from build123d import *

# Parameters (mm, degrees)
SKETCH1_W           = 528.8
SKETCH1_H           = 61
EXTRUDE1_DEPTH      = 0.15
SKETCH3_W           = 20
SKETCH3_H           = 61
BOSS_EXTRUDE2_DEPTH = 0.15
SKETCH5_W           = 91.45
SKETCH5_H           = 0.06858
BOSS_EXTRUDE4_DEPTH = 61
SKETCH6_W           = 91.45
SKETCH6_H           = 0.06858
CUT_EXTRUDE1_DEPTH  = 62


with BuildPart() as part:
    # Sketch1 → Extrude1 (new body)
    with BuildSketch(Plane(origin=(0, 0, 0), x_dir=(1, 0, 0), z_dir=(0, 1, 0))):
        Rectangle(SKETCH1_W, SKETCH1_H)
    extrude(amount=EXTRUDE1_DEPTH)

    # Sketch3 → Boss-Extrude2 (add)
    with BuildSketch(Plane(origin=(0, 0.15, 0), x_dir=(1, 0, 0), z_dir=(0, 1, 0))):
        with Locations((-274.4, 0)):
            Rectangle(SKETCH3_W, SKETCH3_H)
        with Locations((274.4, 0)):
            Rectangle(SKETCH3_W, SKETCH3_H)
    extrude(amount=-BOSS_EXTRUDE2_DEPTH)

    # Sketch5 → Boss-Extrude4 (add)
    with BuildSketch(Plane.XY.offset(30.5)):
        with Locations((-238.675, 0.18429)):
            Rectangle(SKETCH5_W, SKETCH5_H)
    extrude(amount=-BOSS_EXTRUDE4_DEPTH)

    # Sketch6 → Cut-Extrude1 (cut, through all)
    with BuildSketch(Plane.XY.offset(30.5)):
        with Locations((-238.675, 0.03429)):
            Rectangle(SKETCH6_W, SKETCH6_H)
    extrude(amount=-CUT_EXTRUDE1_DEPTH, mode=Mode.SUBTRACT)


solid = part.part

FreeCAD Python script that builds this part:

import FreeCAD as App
import Part
import Sketcher
from FreeCAD import Vector

doc = App.newDocument("Part")
body = doc.addObject("PartDesign::Body", "Body")

sketch1 = body.newObject("Sketcher::SketchObject", "Sketch")
sketch1.AttachmentSupport = (doc.getObject("XZ_Plane"), [""])
sketch1.MapMode = "FlatFace"
sketch1.addGeometry([
    Part.LineSegment(Vector(-264.4, -30.5, 0), Vector(-264.4, 30.5, 0)),
    Part.LineSegment(Vector(-264.4, 30.5, 0), Vector(264.4, 30.5, 0)),
    Part.LineSegment(Vector(264.4, 30.5, 0), Vector(264.4, -30.5, 0)),
    Part.LineSegment(Vector(264.4, -30.5, 0), Vector(-264.4, -30.5, 0)),
], False)
sketch1.addConstraint([
    Sketcher.Constraint("Coincident", 0, 2, 1, 1),
    Sketcher.Constraint("Coincident", 1, 2, 2, 1),
    Sketcher.Constraint("Coincident", 2, 2, 3, 1),
    Sketcher.Constraint("Coincident", 3, 2, 0, 1),
    Sketcher.Constraint("Vertical", 0),
    Sketcher.Constraint("Horizontal", 1),
    Sketcher.Constraint("Vertical", 2),
    Sketcher.Constraint("Horizontal", 3),
    Sketcher.Constraint("Symmetric", 0, 2, 2, 2, -1, 1),
    Sketcher.Constraint("DistanceY", 0, 1, 0, 2, 61.0),
    Sketcher.Constraint("DistanceX", 1, 1, 1, 2, 528.8),
])
pad1 = body.newObject("PartDesign::Pad", "Pad")
pad1.Profile = sketch1
pad1.Length = 0.15
pad1.Reversed = True

sketch2 = body.newObject("Sketcher::SketchObject", "Sketch001")
sketch2.AttachmentSupport = (doc.getObject("XZ_Plane"), [""])
sketch2.MapMode = "FlatFace"
sketch2.AttachmentOffset = App.Placement(Vector(0, 0, -0.15), App.Rotation())
sketch2.addGeometry([
    Part.LineSegment(Vector(-284.4, -30.5, 0), Vector(-284.4, 30.5, 0)),
    Part.LineSegment(Vector(-284.4, 30.5, 0), Vector(-264.4, 30.5, 0)),
    Part.LineSegment(Vector(-264.4, 30.5, 0), Vector(-264.4, -30.5, 0)),
    Part.LineSegment(Vector(-264.4, -30.5, 0), Vector(-284.4, -30.5, 0)),
    Part.LineSegment(Vector(264.4, -30.5, 0), Vector(264.4, 30.5, 0)),
    Part.LineSegment(Vector(264.4, 30.5, 0), Vector(284.4, 30.5, 0)),
    Part.LineSegment(Vector(284.4, 30.5, 0), Vector(284.4, -30.5, 0)),
    Part.LineSegment(Vector(284.4, -30.5, 0), Vector(264.4, -30.5, 0)),
], False)
sketch2.addConstraint([
    Sketcher.Constraint("Coincident", 0, 2, 1, 1),
    Sketcher.Constraint("Coincident", 1, 2, 2, 1),
    Sketcher.Constraint("Coincident", 2, 2, 3, 1),
    Sketcher.Constraint("Coincident", 3, 2, 0, 1),
    Sketcher.Constraint("Coincident", 4, 2, 5, 1),
    Sketcher.Constraint("Coincident", 5, 2, 6, 1),
    Sketcher.Constraint("Coincident", 6, 2, 7, 1),
    Sketcher.Constraint("Coincident", 7, 2, 4, 1),
    Sketcher.Constraint("Vertical", 0),
    Sketcher.Constraint("Horizontal", 1),
    Sketcher.Constraint("Vertical", 2),
    Sketcher.Constraint("Horizontal", 3),
    Sketcher.Constraint("Vertical", 4),
    Sketcher.Constraint("Horizontal", 5),
    Sketcher.Constraint("Vertical", 6),
    Sketcher.Constraint("Horizontal", 7),
    Sketcher.Constraint("Symmetric", 2, 2, 4, 2, -1, 1),
    Sketcher.Constraint("Symmetric", 0, 2, 6, 2, -1, 1),
    Sketcher.Constraint("Horizontal", 1, 2, 4, 2),
    Sketcher.Constraint("DistanceX", 1, 1, 1, 2, 20.0),
    Sketcher.Constraint("DistanceY", 0, 1, 0, 2, 61.0),
    Sketcher.Constraint("DistanceX", 0, 2, -1, 1, 284.4),
])
pad2 = body.newObject("PartDesign::Pad", "Pad001")
pad2.Profile = sketch2
pad2.Length = 0.15

sketch3 = body.newObject("Sketcher::SketchObject", "Sketch002")
sketch3.AttachmentSupport = (doc.getObject("XY_Plane"), [""])
sketch3.MapMode = "FlatFace"
sketch3.AttachmentOffset = App.Placement(Vector(0, 0, 30.5), App.Rotation())
sketch3.addGeometry([
    Part.LineSegment(Vector(-284.4, 0.21858, 0), Vector(-284.4, 0.15, 0)),
    Part.LineSegment(Vector(-284.4, 0.15, 0), Vector(-192.95, 0.15, 0)),
    Part.LineSegment(Vector(-192.95, 0.15, 0), Vector(-192.95, 0.21858, 0)),
    Part.LineSegment(Vector(-192.95, 0.21858, 0), Vector(-284.4, 0.21858, 0)),
], False)
sketch3.addConstraint([
    Sketcher.Constraint("Coincident", 0, 2, 1, 1),
    Sketcher.Constraint("Coincident", 1, 2, 2, 1),
    Sketcher.Constraint("Coincident", 2, 2, 3, 1),
    Sketcher.Constraint("Coincident", 3, 2, 0, 1),
    Sketcher.Constraint("Vertical", 0),
    Sketcher.Constraint("Horizontal", 1),
    Sketcher.Constraint("Vertical", 2),
    Sketcher.Constraint("Horizontal", 3),
    Sketcher.Constraint("DistanceX", 1, 1, 1, 2, 91.45),
    Sketcher.Constraint("DistanceX", 0, 2, -1, 1, 284.4),
    Sketcher.Constraint("DistanceY", -1, 1, 0, 2, 0.15),
    Sketcher.Constraint("DistanceY", 0, 2, 0, 1, 0.06858),
])
pad3 = body.newObject("PartDesign::Pad", "Pad002")
pad3.Profile = sketch3
pad3.Length = 61
pad3.Reversed = True

sketch4 = body.newObject("Sketcher::SketchObject", "Sketch003")
sketch4.AttachmentSupport = (doc.getObject("XY_Plane"), [""])
sketch4.MapMode = "FlatFace"
sketch4.AttachmentOffset = App.Placement(Vector(0, 0, 30.5), App.Rotation())
sketch4.addGeometry([
    Part.LineSegment(Vector(-284.4, 0.06858, 0), Vector(-284.4, 0, 0)),
    Part.LineSegment(Vector(-284.4, 0, 0), Vector(-192.95, 0, 0)),
    Part.LineSegment(Vector(-192.95, 0, 0), Vector(-192.95, 0.06858, 0)),
    Part.LineSegment(Vector(-192.95, 0.06858, 0), Vector(-284.4, 0.06858, 0)),
], False)
sketch4.addConstraint([
    Sketcher.Constraint("Coincident", 0, 2, 1, 1),
    Sketcher.Constraint("Coincident", 1, 2, 2, 1),
    Sketcher.Constraint("Coincident", 2, 2, 3, 1),
    Sketcher.Constraint("Coincident", 3, 2, 0, 1),
    Sketcher.Constraint("Vertical", 0),
    Sketcher.Constraint("Horizontal", 1),
    Sketcher.Constraint("Vertical", 2),
    Sketcher.Constraint("Horizontal", 3),
    Sketcher.Constraint("PointOnObject", 0, 2, -1),
    Sketcher.Constraint("DistanceX", 1, 1, 1, 2, 91.45),
    Sketcher.Constraint("DistanceX", 0, 2, -1, 1, 284.4),
    Sketcher.Constraint("DistanceY", 0, 2, 0, 1, 0.06858),
])
pocket1 = body.newObject("PartDesign::Pocket", "Pocket")
pocket1.Profile = sketch4
pocket1.Type = "ThroughAll"

doc.recompute()
